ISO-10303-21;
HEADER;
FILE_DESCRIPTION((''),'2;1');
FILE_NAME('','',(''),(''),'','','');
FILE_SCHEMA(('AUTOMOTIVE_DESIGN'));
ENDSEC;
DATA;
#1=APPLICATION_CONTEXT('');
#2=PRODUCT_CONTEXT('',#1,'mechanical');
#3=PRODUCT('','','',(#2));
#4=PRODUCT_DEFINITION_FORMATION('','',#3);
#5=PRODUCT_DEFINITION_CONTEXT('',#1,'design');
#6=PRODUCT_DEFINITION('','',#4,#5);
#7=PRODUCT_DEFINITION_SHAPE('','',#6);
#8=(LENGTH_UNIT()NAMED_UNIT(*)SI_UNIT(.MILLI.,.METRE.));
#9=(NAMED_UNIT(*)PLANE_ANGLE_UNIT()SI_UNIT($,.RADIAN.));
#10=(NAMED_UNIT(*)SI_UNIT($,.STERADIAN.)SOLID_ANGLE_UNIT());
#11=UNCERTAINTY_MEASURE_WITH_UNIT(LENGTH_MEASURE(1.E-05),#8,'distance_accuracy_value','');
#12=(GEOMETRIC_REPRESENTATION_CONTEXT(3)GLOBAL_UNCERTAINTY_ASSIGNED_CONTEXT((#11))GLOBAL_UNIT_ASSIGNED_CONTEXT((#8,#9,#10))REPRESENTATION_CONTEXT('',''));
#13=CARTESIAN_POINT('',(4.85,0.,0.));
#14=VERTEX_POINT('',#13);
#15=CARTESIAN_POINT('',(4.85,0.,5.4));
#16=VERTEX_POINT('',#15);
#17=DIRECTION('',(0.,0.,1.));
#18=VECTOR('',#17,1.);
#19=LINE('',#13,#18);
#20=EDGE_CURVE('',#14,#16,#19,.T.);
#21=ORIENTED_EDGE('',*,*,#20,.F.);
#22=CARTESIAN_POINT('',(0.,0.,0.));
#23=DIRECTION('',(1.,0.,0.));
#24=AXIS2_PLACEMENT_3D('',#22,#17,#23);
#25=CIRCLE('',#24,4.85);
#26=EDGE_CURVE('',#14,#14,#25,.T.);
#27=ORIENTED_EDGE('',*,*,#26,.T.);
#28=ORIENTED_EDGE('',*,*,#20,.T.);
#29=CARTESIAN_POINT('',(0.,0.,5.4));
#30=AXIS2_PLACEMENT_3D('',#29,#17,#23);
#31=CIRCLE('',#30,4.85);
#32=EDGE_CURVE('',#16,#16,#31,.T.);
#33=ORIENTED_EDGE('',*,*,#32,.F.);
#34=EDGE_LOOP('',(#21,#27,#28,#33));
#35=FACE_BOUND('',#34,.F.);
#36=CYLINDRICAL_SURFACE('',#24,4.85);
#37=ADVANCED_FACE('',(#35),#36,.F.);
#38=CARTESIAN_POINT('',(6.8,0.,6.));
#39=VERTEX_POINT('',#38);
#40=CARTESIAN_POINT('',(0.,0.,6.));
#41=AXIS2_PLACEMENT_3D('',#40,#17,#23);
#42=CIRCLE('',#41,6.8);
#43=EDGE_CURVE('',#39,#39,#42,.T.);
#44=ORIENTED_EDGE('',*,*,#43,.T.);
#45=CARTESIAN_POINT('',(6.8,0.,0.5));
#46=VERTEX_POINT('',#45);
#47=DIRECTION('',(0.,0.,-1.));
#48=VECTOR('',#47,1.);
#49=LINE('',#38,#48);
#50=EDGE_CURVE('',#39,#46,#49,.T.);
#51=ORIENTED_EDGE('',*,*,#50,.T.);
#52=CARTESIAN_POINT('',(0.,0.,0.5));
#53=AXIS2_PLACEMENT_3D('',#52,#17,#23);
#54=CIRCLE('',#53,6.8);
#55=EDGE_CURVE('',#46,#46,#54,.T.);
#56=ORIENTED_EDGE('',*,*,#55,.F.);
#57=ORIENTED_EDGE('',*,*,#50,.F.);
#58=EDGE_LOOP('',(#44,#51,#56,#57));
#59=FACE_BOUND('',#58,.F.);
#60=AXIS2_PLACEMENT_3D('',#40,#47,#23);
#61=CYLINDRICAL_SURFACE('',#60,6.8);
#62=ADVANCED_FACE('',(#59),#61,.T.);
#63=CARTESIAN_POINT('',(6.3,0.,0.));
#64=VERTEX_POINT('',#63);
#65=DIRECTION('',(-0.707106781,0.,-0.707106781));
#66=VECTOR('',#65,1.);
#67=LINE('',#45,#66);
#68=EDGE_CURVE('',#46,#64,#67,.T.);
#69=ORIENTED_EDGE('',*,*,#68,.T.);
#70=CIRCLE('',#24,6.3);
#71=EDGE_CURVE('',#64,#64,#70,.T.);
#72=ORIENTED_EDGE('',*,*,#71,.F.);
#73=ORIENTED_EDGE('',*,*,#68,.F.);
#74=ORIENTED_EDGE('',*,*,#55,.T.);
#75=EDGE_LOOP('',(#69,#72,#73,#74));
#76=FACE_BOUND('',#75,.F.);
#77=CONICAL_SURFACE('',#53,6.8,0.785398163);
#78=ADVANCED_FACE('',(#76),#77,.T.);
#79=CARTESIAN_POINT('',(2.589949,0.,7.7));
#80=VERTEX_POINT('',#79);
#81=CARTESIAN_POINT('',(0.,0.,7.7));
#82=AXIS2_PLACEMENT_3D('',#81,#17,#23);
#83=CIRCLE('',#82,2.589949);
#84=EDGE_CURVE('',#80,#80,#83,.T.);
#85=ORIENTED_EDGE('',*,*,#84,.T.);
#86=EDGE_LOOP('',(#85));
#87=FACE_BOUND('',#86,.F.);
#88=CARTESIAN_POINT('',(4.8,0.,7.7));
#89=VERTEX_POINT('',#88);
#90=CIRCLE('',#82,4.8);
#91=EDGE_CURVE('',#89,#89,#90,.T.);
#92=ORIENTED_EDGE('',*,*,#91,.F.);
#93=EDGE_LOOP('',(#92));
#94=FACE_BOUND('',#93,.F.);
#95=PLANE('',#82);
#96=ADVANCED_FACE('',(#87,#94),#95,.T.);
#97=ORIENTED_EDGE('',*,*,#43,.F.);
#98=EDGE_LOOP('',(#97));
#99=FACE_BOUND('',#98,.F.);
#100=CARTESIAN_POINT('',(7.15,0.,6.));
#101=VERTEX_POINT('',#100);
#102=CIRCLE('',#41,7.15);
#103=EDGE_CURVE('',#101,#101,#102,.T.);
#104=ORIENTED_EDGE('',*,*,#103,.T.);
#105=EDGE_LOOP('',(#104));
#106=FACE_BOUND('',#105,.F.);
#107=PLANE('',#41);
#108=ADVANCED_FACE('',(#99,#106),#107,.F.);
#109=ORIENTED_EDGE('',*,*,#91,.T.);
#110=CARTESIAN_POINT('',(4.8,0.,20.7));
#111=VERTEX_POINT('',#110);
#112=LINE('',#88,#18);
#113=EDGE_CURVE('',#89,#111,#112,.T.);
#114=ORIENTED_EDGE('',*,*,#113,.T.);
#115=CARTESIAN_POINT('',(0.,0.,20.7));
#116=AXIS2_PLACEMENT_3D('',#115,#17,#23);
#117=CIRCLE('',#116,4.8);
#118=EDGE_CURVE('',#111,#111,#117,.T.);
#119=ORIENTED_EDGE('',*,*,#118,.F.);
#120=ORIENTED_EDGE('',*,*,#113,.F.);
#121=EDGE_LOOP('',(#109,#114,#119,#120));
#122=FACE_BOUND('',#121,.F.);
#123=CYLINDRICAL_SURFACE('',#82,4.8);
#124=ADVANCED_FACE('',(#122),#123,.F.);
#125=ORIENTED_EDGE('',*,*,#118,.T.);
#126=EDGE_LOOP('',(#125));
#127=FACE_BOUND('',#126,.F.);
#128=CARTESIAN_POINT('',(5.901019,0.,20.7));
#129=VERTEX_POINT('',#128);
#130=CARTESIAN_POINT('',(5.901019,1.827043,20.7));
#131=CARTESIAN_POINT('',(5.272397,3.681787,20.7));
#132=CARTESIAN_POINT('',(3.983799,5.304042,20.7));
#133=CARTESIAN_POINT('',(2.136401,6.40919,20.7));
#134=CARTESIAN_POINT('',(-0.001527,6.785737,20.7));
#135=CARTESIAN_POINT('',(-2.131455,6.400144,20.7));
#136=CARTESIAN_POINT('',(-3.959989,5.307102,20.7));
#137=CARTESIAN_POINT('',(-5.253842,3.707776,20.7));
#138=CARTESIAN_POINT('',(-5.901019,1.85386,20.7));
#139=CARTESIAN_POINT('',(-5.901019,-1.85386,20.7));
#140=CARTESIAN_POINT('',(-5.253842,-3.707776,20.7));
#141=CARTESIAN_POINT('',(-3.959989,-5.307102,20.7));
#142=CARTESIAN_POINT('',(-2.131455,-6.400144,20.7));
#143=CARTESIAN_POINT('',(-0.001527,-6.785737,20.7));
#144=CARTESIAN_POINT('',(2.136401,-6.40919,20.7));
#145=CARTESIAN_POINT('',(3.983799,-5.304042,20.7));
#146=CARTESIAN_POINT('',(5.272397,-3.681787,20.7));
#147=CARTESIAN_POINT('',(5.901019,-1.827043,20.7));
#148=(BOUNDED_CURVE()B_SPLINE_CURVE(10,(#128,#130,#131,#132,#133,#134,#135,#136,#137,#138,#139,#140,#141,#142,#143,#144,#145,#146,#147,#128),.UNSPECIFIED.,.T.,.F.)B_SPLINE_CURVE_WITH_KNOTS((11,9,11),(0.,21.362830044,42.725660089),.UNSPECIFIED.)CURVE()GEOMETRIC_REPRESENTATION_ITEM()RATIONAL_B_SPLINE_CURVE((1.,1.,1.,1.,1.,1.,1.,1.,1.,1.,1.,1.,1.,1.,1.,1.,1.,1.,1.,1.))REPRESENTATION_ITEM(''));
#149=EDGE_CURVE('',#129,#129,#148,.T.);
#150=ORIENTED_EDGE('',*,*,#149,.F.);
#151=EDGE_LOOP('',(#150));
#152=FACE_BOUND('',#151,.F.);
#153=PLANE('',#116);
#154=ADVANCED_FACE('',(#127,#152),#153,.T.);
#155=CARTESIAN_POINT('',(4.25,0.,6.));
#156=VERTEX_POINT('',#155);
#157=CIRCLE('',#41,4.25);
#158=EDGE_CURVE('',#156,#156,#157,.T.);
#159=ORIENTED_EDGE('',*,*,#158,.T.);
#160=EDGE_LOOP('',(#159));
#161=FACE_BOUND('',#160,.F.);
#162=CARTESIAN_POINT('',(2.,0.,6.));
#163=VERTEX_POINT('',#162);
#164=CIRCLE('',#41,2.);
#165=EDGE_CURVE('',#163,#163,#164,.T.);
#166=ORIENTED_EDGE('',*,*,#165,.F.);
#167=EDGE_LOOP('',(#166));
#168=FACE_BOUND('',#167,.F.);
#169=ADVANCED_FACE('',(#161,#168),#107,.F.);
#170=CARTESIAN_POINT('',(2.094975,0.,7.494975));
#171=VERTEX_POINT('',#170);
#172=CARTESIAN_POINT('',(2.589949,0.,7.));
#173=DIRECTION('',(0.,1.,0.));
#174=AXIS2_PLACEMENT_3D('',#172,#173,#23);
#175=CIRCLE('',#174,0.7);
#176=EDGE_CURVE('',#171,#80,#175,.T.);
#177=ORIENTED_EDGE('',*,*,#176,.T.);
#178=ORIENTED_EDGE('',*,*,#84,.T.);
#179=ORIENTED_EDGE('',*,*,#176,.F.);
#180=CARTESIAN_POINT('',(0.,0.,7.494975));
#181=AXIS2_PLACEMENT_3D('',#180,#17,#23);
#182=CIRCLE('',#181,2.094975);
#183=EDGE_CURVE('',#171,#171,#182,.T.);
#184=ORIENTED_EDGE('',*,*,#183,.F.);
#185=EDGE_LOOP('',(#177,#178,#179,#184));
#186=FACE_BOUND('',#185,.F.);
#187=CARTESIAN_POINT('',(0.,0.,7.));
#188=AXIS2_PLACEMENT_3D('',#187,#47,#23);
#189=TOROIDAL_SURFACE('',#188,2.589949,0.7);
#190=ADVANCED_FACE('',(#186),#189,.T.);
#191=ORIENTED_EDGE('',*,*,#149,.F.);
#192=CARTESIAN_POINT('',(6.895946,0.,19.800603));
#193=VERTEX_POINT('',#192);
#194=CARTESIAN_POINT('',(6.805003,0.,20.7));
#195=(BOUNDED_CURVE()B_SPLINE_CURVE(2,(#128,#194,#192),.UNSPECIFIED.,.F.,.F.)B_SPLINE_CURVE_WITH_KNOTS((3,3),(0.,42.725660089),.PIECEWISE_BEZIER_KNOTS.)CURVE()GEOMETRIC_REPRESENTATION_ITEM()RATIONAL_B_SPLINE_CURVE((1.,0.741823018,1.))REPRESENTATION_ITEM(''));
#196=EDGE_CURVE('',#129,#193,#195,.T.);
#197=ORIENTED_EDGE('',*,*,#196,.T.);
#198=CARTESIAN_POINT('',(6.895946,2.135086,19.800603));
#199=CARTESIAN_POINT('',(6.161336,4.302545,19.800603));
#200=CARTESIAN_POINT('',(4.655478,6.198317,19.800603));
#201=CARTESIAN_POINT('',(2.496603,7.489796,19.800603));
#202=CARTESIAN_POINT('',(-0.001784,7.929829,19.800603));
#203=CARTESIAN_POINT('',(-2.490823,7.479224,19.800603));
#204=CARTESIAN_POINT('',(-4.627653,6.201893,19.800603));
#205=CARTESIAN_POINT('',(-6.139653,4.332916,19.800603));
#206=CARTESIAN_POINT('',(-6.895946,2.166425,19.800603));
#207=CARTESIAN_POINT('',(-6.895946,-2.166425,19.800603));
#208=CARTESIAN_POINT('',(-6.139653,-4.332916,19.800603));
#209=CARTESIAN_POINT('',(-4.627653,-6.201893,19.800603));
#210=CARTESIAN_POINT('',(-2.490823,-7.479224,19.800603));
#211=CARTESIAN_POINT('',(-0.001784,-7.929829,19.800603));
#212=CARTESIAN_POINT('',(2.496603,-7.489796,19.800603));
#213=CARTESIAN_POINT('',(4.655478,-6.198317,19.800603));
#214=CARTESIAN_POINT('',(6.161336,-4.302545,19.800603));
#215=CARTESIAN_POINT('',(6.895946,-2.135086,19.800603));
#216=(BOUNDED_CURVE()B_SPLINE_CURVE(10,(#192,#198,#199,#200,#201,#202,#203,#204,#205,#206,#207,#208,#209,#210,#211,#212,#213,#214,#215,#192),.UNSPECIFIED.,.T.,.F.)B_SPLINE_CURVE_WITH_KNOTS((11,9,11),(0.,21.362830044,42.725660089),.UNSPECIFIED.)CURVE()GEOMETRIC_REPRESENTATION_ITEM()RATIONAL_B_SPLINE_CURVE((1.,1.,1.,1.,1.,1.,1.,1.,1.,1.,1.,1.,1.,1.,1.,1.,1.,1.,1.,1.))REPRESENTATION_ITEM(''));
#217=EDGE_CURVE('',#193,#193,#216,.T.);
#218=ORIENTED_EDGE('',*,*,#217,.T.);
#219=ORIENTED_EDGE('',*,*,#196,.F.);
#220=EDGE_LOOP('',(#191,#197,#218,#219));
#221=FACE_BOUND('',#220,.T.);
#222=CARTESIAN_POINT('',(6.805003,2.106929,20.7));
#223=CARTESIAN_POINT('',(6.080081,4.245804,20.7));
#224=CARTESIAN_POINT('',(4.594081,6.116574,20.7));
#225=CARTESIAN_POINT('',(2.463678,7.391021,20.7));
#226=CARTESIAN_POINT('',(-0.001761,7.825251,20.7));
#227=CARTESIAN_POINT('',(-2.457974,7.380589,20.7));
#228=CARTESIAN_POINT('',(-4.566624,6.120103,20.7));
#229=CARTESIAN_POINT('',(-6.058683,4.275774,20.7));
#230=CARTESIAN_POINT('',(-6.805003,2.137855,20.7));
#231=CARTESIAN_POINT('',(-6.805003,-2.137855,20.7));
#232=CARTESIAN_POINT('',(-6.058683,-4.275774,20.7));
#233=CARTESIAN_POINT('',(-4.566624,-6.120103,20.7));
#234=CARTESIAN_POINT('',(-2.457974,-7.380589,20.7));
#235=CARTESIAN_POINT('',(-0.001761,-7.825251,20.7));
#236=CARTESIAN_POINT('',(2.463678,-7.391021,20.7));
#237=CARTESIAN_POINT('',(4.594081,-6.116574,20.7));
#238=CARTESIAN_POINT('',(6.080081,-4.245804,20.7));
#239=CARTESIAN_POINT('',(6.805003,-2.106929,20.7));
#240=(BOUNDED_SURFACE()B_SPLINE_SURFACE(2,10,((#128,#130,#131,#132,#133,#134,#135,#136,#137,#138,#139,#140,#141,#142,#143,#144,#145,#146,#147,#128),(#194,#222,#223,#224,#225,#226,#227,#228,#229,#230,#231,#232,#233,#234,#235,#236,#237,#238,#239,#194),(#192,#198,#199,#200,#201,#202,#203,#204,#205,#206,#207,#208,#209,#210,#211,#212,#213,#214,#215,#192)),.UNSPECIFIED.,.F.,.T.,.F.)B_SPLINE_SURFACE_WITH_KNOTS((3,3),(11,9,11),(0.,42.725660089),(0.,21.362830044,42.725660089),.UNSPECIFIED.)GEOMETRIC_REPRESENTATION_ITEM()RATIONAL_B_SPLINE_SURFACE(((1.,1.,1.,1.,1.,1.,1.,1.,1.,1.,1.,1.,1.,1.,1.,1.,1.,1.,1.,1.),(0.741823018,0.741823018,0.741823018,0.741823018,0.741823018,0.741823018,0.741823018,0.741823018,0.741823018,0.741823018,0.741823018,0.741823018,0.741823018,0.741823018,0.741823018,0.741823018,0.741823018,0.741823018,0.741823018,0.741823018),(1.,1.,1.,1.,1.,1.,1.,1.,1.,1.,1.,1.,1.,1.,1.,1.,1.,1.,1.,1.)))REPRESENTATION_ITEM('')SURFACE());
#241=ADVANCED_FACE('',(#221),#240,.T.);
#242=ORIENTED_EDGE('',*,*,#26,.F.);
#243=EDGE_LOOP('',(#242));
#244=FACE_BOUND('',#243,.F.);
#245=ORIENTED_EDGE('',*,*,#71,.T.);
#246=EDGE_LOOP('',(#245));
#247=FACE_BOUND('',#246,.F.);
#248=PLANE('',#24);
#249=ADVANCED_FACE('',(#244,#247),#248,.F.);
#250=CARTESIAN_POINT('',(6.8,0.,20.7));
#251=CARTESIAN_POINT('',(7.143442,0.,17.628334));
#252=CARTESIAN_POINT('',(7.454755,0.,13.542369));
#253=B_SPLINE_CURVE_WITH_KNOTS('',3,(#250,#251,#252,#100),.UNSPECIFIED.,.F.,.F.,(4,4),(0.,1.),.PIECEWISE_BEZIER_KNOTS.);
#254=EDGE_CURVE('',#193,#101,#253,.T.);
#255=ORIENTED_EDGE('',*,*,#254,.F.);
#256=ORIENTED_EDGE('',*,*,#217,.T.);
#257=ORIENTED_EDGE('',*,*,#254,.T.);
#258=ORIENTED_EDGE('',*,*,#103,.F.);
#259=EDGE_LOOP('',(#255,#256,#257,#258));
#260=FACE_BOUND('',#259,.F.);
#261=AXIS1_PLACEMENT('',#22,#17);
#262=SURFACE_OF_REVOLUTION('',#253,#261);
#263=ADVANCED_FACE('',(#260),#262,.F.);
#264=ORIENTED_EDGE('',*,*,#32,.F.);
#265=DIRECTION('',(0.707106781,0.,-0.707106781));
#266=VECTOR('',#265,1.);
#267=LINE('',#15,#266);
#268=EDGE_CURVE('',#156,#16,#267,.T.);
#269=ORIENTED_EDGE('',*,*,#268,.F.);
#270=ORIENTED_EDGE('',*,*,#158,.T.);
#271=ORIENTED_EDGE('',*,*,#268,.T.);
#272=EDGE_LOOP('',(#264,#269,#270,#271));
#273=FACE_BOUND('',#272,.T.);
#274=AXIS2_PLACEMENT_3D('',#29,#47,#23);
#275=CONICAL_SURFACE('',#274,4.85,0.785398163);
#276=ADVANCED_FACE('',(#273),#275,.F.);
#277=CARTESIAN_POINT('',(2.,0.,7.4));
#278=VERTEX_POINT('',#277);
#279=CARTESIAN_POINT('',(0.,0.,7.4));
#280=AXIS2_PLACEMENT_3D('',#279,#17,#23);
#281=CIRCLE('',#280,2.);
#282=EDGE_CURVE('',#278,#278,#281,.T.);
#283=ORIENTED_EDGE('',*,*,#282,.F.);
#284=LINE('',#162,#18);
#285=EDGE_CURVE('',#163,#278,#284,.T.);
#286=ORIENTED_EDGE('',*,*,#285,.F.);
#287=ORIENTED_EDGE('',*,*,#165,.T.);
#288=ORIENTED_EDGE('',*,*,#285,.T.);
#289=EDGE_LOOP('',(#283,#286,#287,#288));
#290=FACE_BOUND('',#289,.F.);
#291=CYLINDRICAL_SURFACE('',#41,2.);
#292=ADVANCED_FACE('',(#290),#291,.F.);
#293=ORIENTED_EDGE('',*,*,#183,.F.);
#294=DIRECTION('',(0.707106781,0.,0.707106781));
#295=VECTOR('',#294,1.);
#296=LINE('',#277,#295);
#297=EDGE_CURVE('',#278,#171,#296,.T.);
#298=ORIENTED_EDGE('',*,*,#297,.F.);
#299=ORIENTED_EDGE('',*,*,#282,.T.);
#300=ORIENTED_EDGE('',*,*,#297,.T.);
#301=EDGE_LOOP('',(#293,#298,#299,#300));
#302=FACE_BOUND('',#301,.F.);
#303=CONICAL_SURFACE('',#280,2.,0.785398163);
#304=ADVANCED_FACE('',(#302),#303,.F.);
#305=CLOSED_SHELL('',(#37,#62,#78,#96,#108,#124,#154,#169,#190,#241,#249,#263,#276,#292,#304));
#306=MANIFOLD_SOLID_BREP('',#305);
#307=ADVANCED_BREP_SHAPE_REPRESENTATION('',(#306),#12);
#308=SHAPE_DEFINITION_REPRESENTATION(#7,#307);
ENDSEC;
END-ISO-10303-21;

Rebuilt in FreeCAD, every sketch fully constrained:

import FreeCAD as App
import Part
import Sketcher

V = App.Vector


def edges_at(feature, points):
    """Names of the edges that pass closest to the given points."""
    edges = feature.Shape.Edges
    near = lambda p: min(range(len(edges)), key=lambda i: edges[i].distToShape(Part.Vertex(*p))[0])
    return sorted({f"Edge{near(p) + 1}" for p in points})

doc = App.newDocument("Part")
body = doc.addObject("PartDesign::Body", "Body")

# Sketch on XZ plane
sketch1 = body.newObject("Sketcher::SketchObject", "Sketch")
sketch1.AttachmentSupport = (doc.getObject("XZ_Plane"), [""])
sketch1.MapMode = "FlatFace"
sketch1.addGeometry([
    Part.LineSegment(V(4.85, 6, 0), V(4.85, 0, 0)),  # 0
    Part.LineSegment(V(4.85, 0, 0), V(6.8, 0, 0)),  # 1
    Part.LineSegment(V(6.8, 0, 0), V(6.8, 6, 0)),  # 2
    Part.LineSegment(V(6.8, 6, 0), V(7.15, 6, 0)),  # 3
    Part.BSplineCurve([V(6.8, 20.7, 0), V(7.143442, 17.628334, 0), V(7.454755, 13.542369, 0), V(7.15, 6, 0)], [4, 4], [0, 1], False, 3, [1, 1, 1, 1], False),  # 4
    Part.LineSegment(V(6.8, 20.7, 0), V(4.8, 20.7, 0)),  # 5
    Part.LineSegment(V(4.8, 20.7, 0), V(4.8, 7.7, 0)),  # 6
    Part.LineSegment(V(4.8, 7.7, 0), V(2, 7.7, 0)),  # 7
    Part.LineSegment(V(2, 7.7, 0), V(2, 6, 0)),  # 8
    Part.LineSegment(V(2, 6, 0), V(4.85, 6, 0)),  # 9
], False)
sketch1.addConstraint([
    Sketcher.Constraint("Block", 4),
    Sketcher.Constraint("Coincident", 0, 2, 1, 1),
    Sketcher.Constraint("Coincident", 1, 2, 2, 1),
    Sketcher.Constraint("Coincident", 2, 2, 3, 1),
    Sketcher.Constraint("Coincident", 3, 2, 4, 2),
    Sketcher.Constraint("Coincident", 4, 1, 5, 1),
    Sketcher.Constraint("Coincident", 5, 2, 6, 1),
    Sketcher.Constraint("Coincident", 6, 2, 7, 1),
    Sketcher.Constraint("Coincident", 7, 2, 8, 1),
    Sketcher.Constraint("Coincident", 8, 2, 9, 1),
    Sketcher.Constraint("Coincident", 9, 2, 0, 1),
    Sketcher.Constraint("Vertical", 0),
    Sketcher.Constraint("Horizontal", 1),
    Sketcher.Constraint("Vertical", 2),
    Sketcher.Constraint("Horizontal", 3),
    Sketcher.Constraint("Horizontal", 5),
    Sketcher.Constraint("Vertical", 6),
    Sketcher.Constraint("Horizontal", 7),
    Sketcher.Constraint("Vertical", 8),
    Sketcher.Constraint("Horizontal", 9),
    Sketcher.Constraint("PointOnObject", 0, 2, -1),
    Sketcher.Constraint("Horizontal", 3, 2, 8, 2),
    Sketcher.Constraint("DistanceX", 5, 2, 5, 1, 2.0),
    Sketcher.Constraint("DistanceY", 6, 2, 6, 1, 13.0),
    Sketcher.Constraint("DistanceX", 7, 2, 7, 1, 2.8),
    Sketcher.Constraint("DistanceX", 5, 2, 2, 2, 2.0),
    Sketcher.Constraint("DistanceX", 1, 1, 1, 2, 1.95),
])
revolution = body.newObject("PartDesign::Revolution", "Revolution")
revolution.Profile = sketch1
revolution.ReferenceAxis = (sketch1, ["V_Axis"])
revolution.Angle = 360
doc.recompute()

chamfer = body.newObject("PartDesign::Chamfer", "Chamfer")
chamfer.Base = (revolution, edges_at(revolution, [(-2, 0, 7.7)]))
chamfer.Size = 0.3
doc.recompute()

fillet = body.newObject("PartDesign::Fillet", "Fillet")
fillet.Base = (chamfer, edges_at(chamfer, [(-6.8, 0, 20.7)]))
fillet.Radius = 1
doc.recompute()

chamfer2 = body.newObject("PartDesign::Chamfer", "Chamfer001")
chamfer2.Base = (fillet, edges_at(fillet, [(-6.8, 0, 0)]))
chamfer2.Size = 0.5
doc.recompute()

fillet2 = body.newObject("PartDesign::Fillet", "Fillet001")
fillet2.Base = (chamfer2, edges_at(chamfer2, [(-2.3, 0, 7.7)]))
fillet2.Radius = 0.7
doc.recompute()

chamfer3 = body.newObject("PartDesign::Chamfer", "Chamfer002")
chamfer3.Base = (fillet2, edges_at(fillet2, [(-4.85, 0, 6)]))
chamfer3.Size = 0.6

doc.recompute()
